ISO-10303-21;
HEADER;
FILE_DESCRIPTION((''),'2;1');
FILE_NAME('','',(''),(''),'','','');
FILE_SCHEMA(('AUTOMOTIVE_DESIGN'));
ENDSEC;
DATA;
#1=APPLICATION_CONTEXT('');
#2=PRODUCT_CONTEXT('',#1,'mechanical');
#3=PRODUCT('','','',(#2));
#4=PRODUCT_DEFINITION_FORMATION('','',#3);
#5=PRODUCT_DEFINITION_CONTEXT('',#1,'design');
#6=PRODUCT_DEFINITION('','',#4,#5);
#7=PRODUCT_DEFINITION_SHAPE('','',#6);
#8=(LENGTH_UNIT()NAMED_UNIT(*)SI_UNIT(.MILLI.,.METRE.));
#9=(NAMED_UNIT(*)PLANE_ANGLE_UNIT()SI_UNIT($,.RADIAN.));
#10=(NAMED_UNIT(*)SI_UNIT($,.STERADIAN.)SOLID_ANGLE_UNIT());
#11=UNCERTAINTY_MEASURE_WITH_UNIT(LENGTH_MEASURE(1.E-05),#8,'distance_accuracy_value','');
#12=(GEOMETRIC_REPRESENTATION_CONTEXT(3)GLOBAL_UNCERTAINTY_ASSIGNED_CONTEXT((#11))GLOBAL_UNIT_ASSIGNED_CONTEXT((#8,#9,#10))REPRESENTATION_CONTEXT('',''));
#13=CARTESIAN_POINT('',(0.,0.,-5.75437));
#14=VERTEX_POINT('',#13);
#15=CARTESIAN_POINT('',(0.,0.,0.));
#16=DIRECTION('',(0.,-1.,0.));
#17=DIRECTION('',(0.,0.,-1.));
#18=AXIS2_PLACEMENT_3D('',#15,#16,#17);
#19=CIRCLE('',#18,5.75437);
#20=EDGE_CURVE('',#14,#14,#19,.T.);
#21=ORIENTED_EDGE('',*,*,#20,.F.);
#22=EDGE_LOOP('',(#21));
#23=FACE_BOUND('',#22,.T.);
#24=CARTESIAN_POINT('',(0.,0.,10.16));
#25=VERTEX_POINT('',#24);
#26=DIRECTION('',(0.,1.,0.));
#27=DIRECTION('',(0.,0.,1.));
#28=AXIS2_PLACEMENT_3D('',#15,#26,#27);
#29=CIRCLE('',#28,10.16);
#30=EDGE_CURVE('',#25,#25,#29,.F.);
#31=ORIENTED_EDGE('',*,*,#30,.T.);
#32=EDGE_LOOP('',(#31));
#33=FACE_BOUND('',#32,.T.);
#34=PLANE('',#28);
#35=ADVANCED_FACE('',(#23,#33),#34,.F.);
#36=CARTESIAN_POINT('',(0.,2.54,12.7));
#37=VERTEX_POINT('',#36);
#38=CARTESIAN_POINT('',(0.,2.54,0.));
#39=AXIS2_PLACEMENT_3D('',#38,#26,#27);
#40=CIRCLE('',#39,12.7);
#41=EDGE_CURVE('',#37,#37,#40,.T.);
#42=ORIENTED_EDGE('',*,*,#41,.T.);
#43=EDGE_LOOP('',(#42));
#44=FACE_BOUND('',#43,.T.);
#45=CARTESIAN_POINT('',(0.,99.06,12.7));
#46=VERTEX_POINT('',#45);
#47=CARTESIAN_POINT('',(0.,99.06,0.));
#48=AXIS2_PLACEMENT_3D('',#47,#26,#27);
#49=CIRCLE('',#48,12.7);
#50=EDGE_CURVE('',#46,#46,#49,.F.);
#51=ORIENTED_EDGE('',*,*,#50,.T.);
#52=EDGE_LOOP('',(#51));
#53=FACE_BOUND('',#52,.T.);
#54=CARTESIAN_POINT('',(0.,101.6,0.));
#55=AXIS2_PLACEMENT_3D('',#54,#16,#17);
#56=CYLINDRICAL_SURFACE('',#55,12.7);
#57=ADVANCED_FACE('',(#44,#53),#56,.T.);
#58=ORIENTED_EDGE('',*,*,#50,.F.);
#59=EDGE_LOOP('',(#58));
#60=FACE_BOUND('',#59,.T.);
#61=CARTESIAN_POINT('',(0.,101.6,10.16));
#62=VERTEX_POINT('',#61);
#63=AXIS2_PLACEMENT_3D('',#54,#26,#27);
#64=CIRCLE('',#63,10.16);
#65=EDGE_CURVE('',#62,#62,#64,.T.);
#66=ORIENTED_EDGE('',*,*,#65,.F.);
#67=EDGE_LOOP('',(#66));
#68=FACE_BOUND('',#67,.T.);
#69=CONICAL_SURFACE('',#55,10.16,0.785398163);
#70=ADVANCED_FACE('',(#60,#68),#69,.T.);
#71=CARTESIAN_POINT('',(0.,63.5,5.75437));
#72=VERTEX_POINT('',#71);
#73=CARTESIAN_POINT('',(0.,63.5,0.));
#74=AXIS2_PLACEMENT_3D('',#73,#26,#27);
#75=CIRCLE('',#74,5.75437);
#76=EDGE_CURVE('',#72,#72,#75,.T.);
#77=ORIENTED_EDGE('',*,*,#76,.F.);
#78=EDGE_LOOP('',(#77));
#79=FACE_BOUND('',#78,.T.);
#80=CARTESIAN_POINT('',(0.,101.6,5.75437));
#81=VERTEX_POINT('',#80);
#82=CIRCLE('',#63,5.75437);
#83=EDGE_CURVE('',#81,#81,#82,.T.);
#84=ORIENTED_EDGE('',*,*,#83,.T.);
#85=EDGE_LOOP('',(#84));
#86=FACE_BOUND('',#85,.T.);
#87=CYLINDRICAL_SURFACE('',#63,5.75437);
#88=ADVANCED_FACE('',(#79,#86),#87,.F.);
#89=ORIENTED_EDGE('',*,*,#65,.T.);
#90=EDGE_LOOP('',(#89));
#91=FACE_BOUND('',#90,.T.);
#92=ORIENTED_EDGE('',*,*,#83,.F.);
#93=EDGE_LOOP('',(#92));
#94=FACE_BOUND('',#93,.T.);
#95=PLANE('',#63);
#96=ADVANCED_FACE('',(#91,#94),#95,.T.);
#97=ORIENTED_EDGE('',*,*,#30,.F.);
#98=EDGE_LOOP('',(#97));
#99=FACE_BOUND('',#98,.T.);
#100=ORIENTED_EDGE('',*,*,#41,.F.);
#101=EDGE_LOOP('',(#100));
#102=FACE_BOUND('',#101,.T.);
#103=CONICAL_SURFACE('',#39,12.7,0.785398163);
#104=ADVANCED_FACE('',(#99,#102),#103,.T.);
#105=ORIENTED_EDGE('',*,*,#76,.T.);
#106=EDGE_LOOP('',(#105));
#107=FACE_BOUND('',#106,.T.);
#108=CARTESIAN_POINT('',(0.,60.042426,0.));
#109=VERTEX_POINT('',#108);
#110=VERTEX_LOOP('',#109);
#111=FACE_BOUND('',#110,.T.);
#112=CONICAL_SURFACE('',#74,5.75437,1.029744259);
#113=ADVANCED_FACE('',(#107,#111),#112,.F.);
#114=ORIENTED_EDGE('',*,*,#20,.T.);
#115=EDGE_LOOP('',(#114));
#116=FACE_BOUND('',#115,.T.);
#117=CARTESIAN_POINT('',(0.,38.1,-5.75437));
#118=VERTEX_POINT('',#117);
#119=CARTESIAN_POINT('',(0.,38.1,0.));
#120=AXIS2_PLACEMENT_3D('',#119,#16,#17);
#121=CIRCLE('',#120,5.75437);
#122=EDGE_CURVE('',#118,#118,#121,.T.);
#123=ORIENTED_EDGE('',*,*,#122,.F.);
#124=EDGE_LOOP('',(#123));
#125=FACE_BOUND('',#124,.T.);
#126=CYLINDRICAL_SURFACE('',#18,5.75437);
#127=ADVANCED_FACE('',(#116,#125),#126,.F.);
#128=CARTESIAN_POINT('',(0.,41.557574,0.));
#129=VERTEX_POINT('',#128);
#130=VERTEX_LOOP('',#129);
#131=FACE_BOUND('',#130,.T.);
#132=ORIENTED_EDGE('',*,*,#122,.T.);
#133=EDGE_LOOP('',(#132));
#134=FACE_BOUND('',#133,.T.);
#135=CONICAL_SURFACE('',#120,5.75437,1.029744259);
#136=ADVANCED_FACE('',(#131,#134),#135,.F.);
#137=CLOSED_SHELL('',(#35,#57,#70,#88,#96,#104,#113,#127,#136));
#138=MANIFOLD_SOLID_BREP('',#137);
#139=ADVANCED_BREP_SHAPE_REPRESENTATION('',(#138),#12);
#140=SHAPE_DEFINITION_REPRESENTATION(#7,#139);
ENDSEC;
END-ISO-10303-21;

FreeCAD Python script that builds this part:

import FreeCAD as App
import Part
import Sketcher
from FreeCAD import Vector
Q = App.Units.Quantity


def edges_at(feature, points):
    """Names of the edges that pass closest to the given points."""
    edges = feature.Shape.Edges
    near = lambda p: min(range(len(edges)), key=lambda i: edges[i].distToShape(Part.Vertex(*p))[0])
    return sorted({f"Edge{near(p) + 1}" for p in points})

doc = App.newDocument("Part")
body = doc.addObject("PartDesign::Body", "Body")

sketch1 = body.newObject("Sketcher::SketchObject", "Sketch")
sketch1.AttachmentSupport = (doc.getObject("XZ_Plane"), [""])
sketch1.MapMode = "FlatFace"
sketch1.addGeometry(Part.Circle(Vector(0, 0, 0), Vector(0, 0, 1), 12.7), False)
sketch1.addConstraint([
    Sketcher.Constraint("Coincident", 0, 3, -1, 1),
    Sketcher.Constraint("Diameter", 0, Q("1 in")),
])
pad1 = body.newObject("PartDesign::Pad", "Pad")
pad1.Profile = sketch1
pad1.Length = Q("4 in")
pad1.Reversed = True

sketch2 = body.newObject("Sketcher::SketchObject", "Sketch001")
sketch2.AttachmentSupport = (doc.getObject("XZ_Plane"), [""])
sketch2.MapMode = "FlatFace"
sketch2.AttachmentOffset = App.Placement(Vector(0, 0, -4 * 25.4), App.Rotation())
sketch2.addGeometry(Part.Circle(Vector(0, 0, 0), Vector(0, 0, 1), 5.75437), False)
sketch2.addConstraint([
    Sketcher.Constraint("Coincident", 0, 3, -1, 1),
    Sketcher.Constraint("Diameter", 0, Q("0.4531 in")),
])
doc.recompute()
hole = body.newObject("PartDesign::Hole", "Hole")
hole.Profile = sketch2
hole.ThreadType = "None"
hole.Diameter = Q("0.4531 in")
hole.DepthType = "Dimension"
hole.Depth = Q("1.5 in")
hole.DrillPoint = "Angled"
hole.DrillPointAngle = 118
hole.Reversed = True

sketch3 = body.newObject("Sketcher::SketchObject", "Sketch002")
sketch3.AttachmentSupport = (doc.getObject("XZ_Plane"), [""])
sketch3.MapMode = "FlatFace"
sketch3.addGeometry(Part.Circle(Vector(0, 0, 0), Vector(0, 0, 1), 5.75437), False)
sketch3.addConstraint([
    Sketcher.Constraint("Coincident", 0, 3, -1, 1),
    Sketcher.Constraint("Diameter", 0, Q("0.4531 in")),
])
doc.recompute()
hole2 = body.newObject("PartDesign::Hole", "Hole001")
hole2.Profile = sketch3
hole2.ThreadType = "None"
hole2.Diameter = Q("0.4531 in")
hole2.DepthType = "Dimension"
hole2.Depth = Q("1.5 in")
hole2.DrillPoint = "Angled"
hole2.DrillPointAngle = 118
doc.recompute()

chamfer = body.newObject("PartDesign::Chamfer", "Chamfer")
chamfer.Base = (hole2, edges_at(hole2, [(0, 0, -12.7), (0, 101.6, -12.7)]))
chamfer.Size = Q("0.1 in")

doc.recompute()
